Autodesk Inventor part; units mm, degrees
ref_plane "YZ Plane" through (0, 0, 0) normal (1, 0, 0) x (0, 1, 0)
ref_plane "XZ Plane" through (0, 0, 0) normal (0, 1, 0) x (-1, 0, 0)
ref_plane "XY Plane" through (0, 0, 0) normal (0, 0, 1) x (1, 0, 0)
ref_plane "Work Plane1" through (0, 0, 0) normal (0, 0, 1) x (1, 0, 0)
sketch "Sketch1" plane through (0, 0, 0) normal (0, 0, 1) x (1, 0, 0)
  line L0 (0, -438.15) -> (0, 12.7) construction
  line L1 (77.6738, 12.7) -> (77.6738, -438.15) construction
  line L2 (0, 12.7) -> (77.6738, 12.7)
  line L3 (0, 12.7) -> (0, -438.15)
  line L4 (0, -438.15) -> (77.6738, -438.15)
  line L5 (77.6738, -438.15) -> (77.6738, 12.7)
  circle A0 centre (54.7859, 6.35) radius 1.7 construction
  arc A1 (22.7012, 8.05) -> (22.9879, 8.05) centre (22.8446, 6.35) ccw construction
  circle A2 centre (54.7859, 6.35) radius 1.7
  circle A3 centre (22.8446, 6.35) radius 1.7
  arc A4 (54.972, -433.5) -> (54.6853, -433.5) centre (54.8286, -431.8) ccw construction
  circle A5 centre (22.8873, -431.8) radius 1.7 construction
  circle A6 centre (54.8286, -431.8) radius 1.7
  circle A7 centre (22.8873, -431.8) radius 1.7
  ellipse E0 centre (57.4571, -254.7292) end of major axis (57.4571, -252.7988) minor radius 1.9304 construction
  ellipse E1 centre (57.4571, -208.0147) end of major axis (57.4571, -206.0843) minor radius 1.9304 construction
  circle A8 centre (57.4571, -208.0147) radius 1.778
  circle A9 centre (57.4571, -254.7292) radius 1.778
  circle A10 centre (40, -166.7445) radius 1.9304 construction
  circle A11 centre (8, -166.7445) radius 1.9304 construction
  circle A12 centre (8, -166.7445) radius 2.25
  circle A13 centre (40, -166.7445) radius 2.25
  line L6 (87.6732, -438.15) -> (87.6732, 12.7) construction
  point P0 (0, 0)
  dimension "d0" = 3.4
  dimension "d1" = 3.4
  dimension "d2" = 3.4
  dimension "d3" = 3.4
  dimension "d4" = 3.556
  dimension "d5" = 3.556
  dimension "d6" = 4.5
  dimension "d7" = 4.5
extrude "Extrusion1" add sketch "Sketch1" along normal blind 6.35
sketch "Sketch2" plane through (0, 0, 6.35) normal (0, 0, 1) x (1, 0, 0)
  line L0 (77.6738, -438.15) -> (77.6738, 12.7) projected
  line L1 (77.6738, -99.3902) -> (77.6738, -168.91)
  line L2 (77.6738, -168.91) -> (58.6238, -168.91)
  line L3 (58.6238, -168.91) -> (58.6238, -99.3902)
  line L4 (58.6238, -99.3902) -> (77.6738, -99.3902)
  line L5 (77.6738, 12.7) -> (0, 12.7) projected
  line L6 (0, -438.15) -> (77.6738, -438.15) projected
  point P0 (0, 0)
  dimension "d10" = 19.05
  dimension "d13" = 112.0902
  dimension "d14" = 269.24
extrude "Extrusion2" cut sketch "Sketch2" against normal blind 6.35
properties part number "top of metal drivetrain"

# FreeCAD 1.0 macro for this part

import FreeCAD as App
import Part
import Sketcher

V = App.Vector
Q = App.Units.Quantity

doc = App.newDocument("Part")
params = doc.addObject("Spreadsheet::Sheet", "Params")
for row, (alias, value) in enumerate([
    ("sketch1_diameter", "0.14 in"),
    ("sketch1_height", "17.75 in"),
    ("pad1_length", "0.25 in"),
    ("sketch2_width", "0.75 in"),
    ("sketch2_height", "2.737 in"),
    ("pocket1_length", "0.25 in"),
], start=1):
    params.set(f"A{row}", alias)
    params.set(f"B{row}", "=" + value)
    params.setAlias(f"B{row}", alias)

body = doc.addObject("PartDesign::Body", "Body")

# Sketch on XY plane
sketch1 = body.newObject("Sketcher::SketchObject", "Sketch")
sketch1.AttachmentSupport = (doc.getObject("XY_Plane"), [""])
sketch1.MapMode = "FlatFace"
sketch1.addGeometry([
    Part.LineSegment(V(77.7, 12.7, 0), V(0, 12.7, 0)),  # 0
    Part.LineSegment(V(0, 12.7, 0), V(0, -438.1, 0)),  # 1
    Part.LineSegment(V(0, -438.1, 0), V(77.7, -438.1, 0)),  # 2
    Part.LineSegment(V(77.7, -438.1, 0), V(77.7, 12.7, 0)),  # 3
    Part.Circle(V(22.9, -431.8, 0), V(0, 0, 1), 1.7),  # 4
    Part.Circle(V(54.8, -431.8, 0), V(0, 0, 1), 1.7),  # 5
    Part.Circle(V(57.5, -254.7, 0), V(0, 0, 1), 1.8),  # 6
    Part.Circle(V(8, -166.7, 0), V(0, 0, 1), 2.2),  # 7
    Part.Circle(V(22.8, 6.3, 0), V(0, 0, 1), 1.7),  # 8
    Part.Circle(V(40, -166.7, 0), V(0, 0, 1), 2.2),  # 9
    Part.Circle(V(57.5, -208, 0), V(0, 0, 1), 1.8),  # 10
    Part.Circle(V(54.8, 6.3, 0), V(0, 0, 1), 1.7),  # 11
], False)
sketch1.addConstraint([
    Sketcher.Constraint("Coincident", 0, 2, 1, 1),
    Sketcher.Constraint("Coincident", 1, 2, 2, 1),
    Sketcher.Constraint("Coincident", 2, 2, 3, 1),
    Sketcher.Constraint("Coincident", 3, 2, 0, 1),
    Sketcher.Constraint("Horizontal", 0),
    Sketcher.Constraint("Vertical", 1),
    Sketcher.Constraint("Horizontal", 2),
    Sketcher.Constraint("Vertical", 3),
    Sketcher.Constraint("Equal", 4, 5),
    Sketcher.Constraint("Equal", 5, 8),
    Sketcher.Constraint("Equal", 7, 9),
    Sketcher.Constraint("Equal", 6, 10),
    Sketcher.Constraint("Equal", 8, 11),
    Sketcher.Constraint("PointOnObject", 0, 2, -2),
    Sketcher.Constraint("Horizontal", 4, 3, 5, 3),
    Sketcher.Constraint("Horizontal", 7, 3, 9, 3),
    Sketcher.Constraint("Horizontal", 8, 3, 11, 3),
    Sketcher.Constraint("Vertical", 6, 3, 10, 3),
    Sketcher.Constraint("Diameter", 6, Q("0.14 in")),
    Sketcher.Constraint("Diameter", 4, Q("3.4 mm")),
    Sketcher.Constraint("Diameter", 7, Q("4.5 mm")),
    Sketcher.Constraint("DistanceY", 4, 3, -1, 1, Q("17 in")),
    Sketcher.Constraint("DistanceY", 1, 2, 1, 1, Q("17.75 in")),
    Sketcher.Constraint("DistanceY", -1, 1, 0, 2, Q("0.5 in")),
    Sketcher.Constraint("DistanceY", -1, 1, 8, 3, Q("0.25 in")),
    Sketcher.Constraint("DistanceX", 0, 2, 0, 1, Q("77.6738 mm")),
    Sketcher.Constraint("DistanceX", -1, 1, 5, 3, Q("2.1586 in")),
    Sketcher.Constraint("DistanceX", -1, 1, 6, 3, Q("2.2621 in")),
    Sketcher.Constraint("DistanceY", 6, 3, -1, 1, Q("10.0287 in")),
    Sketcher.Constraint("DistanceX", -1, 1, 8, 3, Q("0.8994 in")),
    Sketcher.Constraint("DistanceX", -1, 1, 9, 3, Q("1.5748 in")),
    Sketcher.Constraint("DistanceY", 10, 3, 9, 3, Q("1.6248 in")),
    Sketcher.Constraint("DistanceX", 11, 3, 3, 2, Q("0.9011 in")),
    Sketcher.Constraint("DistanceX", -1, 1, 4, 3, Q("22.8873 mm")),
    Sketcher.Constraint("DistanceX", -1, 1, 7, 3, Q("8 mm")),
    Sketcher.Constraint("DistanceY", 7, 3, -1, 1, Q("166.7445 mm")),
])
sketch1.setExpression("Constraints[18]", "Params.sketch1_diameter")
sketch1.setExpression("Constraints[22]", "Params.sketch1_height")
pad1 = body.newObject("PartDesign::Pad", "Pad")
pad1.Profile = sketch1
pad1.setExpression("Length", "Params.pad1_length")

# Sketch on XY plane
sketch2 = body.newObject("Sketcher::SketchObject", "Sketch001")
sketch2.AttachmentSupport = (doc.getObject("XY_Plane"), [""])
sketch2.MapMode = "FlatFace"
sketch2.AttachmentOffset = App.Placement(V(0, 0, 0.25 * 25.4), App.Rotation())
sketch2.addGeometry([
    Part.LineSegment(V(59, -169, 0), V(78, -169, 0)),
    Part.LineSegment(V(78, -169, 0), V(78, -99, 0)),
    Part.LineSegment(V(78, -99, 0), V(59, -99, 0)),
    Part.LineSegment(V(59, -99, 0), V(59, -169, 0)),
], False)
sketch2.addConstraint([
    Sketcher.Constraint("Coincident", 0, 2, 1, 1),
    Sketcher.Constraint("Coincident", 1, 2, 2, 1),
    Sketcher.Constraint("Coincident", 2, 2, 3, 1),
    Sketcher.Constraint("Coincident", 3, 2, 0, 1),
    Sketcher.Constraint("Horizontal", 0),
    Sketcher.Constraint("Vertical", 1),
    Sketcher.Constraint("Horizontal", 2),
    Sketcher.Constraint("Vertical", 3),
    Sketcher.Constraint("DistanceX", 0, 1, 0, 2, Q("0.75 in")),
    Sketcher.Constraint("DistanceY", 1, 1, 1, 2, Q("2.737 in")),
    Sketcher.Constraint("DistanceY", 0, 2, -1, 1, Q("6.65 in")),
    Sketcher.Constraint("DistanceX", -1, 1, 0, 2, Q("77.6738 mm")),
])
sketch2.setExpression("Constraints[8]", "Params.sketch2_width")
sketch2.setExpression("Constraints[9]", "Params.sketch2_height")
pocket1 = body.newObject("PartDesign::Pocket", "Pocket")
pocket1.Profile = sketch2
pocket1.setExpression("Length", "Params.pocket1_length")

doc.recompute()
